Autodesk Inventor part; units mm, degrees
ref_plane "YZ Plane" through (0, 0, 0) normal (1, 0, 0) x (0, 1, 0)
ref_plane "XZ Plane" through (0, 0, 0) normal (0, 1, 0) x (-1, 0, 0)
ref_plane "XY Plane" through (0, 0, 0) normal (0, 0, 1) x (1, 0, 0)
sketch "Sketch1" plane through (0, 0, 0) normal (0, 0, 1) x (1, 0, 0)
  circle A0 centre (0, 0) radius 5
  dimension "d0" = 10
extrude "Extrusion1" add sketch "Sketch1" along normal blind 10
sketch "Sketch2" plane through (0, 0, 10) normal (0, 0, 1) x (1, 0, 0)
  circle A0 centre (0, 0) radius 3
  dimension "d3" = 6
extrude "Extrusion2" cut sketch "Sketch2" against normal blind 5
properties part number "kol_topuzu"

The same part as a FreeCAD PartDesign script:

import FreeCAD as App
import Part
import Sketcher

doc = App.newDocument("Part")
body = doc.addObject("PartDesign::Body", "Body")

sketch1 = body.newObject("Sketcher::SketchObject", "Sketch")
sketch1.AttachmentSupport = (doc.getObject("XY_Plane"), [""])
sketch1.MapMode = "FlatFace"
sketch1.addGeometry(Part.Circle(App.Vector(0, 0, 0), App.Vector(0, 0, 1), 5), False)
sketch1.addConstraint([
    Sketcher.Constraint("Coincident", 0, 3, -1, 1),
    Sketcher.Constraint("Diameter", 0, 10.0),
])
pad1 = body.newObject("PartDesign::Pad", "Pad")
pad1.Profile = sketch1
pad1.Length = 10

sketch2 = body.newObject("Sketcher::SketchObject", "Sketch001")
sketch2.AttachmentSupport = (doc.getObject("XY_Plane"), [""])
sketch2.MapMode = "FlatFace"
sketch2.AttachmentOffset = App.Placement(App.Vector(0, 0, 10), App.Rotation())
sketch2.addGeometry(Part.Circle(App.Vector(0, 0, 0), App.Vector(0, 0, 1), 3), False)
sketch2.addConstraint([
    Sketcher.Constraint("Coincident", 0, 3, -1, 1),
    Sketcher.Constraint("Diameter", 0, 6.0),
])
pocket1 = body.newObject("PartDesign::Pocket", "Pocket")
pocket1.Profile = sketch2
pocket1.Length = 5

doc.recompute()
